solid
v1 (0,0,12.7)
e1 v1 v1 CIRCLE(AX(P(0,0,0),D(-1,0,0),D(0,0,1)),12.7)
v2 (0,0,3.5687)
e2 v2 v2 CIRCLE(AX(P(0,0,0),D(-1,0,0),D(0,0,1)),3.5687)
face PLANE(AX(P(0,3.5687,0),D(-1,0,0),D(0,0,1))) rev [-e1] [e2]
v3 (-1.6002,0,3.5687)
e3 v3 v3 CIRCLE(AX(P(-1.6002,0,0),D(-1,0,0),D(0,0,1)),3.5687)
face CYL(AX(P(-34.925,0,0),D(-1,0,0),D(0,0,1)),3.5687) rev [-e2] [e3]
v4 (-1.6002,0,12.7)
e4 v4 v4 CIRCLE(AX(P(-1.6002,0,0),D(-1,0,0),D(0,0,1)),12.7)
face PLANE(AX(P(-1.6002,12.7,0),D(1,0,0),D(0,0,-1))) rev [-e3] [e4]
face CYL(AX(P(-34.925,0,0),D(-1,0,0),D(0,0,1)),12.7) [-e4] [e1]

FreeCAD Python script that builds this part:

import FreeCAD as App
import Part
import Sketcher
Q = App.Units.Quantity

doc = App.newDocument("Part")
body = doc.addObject("PartDesign::Body", "Body")

# Sketch on XY plane
sketch1 = body.newObject("Sketcher::SketchObject", "Sketch")
sketch1.AttachmentSupport = (doc.getObject("XY_Plane"), [""])
sketch1.MapMode = "FlatFace"
sketch1.addGeometry(Part.LineSegment(App.Vector(-1.6, 12.7, 0), App.Vector(-1.6, 3.6, 0)), False)
sketch1.addGeometry(Part.LineSegment(App.Vector(-1.6, 3.6, 0), App.Vector(0, 3.6, 0)), False)
sketch1.addGeometry(Part.LineSegment(App.Vector(0, 3.6, 0), App.Vector(0, 12.7, 0)), False)
sketch1.addGeometry(Part.LineSegment(App.Vector(0, 12.7, 0), App.Vector(-1.6, 12.7, 0)), False)
sketch1.addConstraint(Sketcher.Constraint("Coincident", 0, 2, 1, 1))
sketch1.addConstraint(Sketcher.Constraint("Coincident", 1, 2, 2, 1))
sketch1.addConstraint(Sketcher.Constraint("Coincident", 2, 2, 3, 1))
sketch1.addConstraint(Sketcher.Constraint("Coincident", 3, 2, 0, 1))
sketch1.addConstraint(Sketcher.Constraint("Vertical", 0))
sketch1.addConstraint(Sketcher.Constraint("Horizontal", 1))
sketch1.addConstraint(Sketcher.Constraint("Vertical", 2))
sketch1.addConstraint(Sketcher.Constraint("Horizontal", 3))
sketch1.addConstraint(Sketcher.Constraint("PointOnObject", 1, 2, -2))
sketch1.addConstraint(Sketcher.Constraint("DistanceY", -1, 1, 2, 2, Q("0.5 in")))
sketch1.addConstraint(Sketcher.Constraint("DistanceX", 1, 1, 1, 2, Q("0.063 in")))
sketch1.addConstraint(Sketcher.Constraint("DistanceY", 0, 2, 0, 1, Q("0.3595 in")))
revolution = body.newObject("PartDesign::Revolution", "Revolution")
revolution.Profile = sketch1
revolution.ReferenceAxis = (sketch1, ["H_Axis"])
revolution.Angle = 360

doc.recompute()
